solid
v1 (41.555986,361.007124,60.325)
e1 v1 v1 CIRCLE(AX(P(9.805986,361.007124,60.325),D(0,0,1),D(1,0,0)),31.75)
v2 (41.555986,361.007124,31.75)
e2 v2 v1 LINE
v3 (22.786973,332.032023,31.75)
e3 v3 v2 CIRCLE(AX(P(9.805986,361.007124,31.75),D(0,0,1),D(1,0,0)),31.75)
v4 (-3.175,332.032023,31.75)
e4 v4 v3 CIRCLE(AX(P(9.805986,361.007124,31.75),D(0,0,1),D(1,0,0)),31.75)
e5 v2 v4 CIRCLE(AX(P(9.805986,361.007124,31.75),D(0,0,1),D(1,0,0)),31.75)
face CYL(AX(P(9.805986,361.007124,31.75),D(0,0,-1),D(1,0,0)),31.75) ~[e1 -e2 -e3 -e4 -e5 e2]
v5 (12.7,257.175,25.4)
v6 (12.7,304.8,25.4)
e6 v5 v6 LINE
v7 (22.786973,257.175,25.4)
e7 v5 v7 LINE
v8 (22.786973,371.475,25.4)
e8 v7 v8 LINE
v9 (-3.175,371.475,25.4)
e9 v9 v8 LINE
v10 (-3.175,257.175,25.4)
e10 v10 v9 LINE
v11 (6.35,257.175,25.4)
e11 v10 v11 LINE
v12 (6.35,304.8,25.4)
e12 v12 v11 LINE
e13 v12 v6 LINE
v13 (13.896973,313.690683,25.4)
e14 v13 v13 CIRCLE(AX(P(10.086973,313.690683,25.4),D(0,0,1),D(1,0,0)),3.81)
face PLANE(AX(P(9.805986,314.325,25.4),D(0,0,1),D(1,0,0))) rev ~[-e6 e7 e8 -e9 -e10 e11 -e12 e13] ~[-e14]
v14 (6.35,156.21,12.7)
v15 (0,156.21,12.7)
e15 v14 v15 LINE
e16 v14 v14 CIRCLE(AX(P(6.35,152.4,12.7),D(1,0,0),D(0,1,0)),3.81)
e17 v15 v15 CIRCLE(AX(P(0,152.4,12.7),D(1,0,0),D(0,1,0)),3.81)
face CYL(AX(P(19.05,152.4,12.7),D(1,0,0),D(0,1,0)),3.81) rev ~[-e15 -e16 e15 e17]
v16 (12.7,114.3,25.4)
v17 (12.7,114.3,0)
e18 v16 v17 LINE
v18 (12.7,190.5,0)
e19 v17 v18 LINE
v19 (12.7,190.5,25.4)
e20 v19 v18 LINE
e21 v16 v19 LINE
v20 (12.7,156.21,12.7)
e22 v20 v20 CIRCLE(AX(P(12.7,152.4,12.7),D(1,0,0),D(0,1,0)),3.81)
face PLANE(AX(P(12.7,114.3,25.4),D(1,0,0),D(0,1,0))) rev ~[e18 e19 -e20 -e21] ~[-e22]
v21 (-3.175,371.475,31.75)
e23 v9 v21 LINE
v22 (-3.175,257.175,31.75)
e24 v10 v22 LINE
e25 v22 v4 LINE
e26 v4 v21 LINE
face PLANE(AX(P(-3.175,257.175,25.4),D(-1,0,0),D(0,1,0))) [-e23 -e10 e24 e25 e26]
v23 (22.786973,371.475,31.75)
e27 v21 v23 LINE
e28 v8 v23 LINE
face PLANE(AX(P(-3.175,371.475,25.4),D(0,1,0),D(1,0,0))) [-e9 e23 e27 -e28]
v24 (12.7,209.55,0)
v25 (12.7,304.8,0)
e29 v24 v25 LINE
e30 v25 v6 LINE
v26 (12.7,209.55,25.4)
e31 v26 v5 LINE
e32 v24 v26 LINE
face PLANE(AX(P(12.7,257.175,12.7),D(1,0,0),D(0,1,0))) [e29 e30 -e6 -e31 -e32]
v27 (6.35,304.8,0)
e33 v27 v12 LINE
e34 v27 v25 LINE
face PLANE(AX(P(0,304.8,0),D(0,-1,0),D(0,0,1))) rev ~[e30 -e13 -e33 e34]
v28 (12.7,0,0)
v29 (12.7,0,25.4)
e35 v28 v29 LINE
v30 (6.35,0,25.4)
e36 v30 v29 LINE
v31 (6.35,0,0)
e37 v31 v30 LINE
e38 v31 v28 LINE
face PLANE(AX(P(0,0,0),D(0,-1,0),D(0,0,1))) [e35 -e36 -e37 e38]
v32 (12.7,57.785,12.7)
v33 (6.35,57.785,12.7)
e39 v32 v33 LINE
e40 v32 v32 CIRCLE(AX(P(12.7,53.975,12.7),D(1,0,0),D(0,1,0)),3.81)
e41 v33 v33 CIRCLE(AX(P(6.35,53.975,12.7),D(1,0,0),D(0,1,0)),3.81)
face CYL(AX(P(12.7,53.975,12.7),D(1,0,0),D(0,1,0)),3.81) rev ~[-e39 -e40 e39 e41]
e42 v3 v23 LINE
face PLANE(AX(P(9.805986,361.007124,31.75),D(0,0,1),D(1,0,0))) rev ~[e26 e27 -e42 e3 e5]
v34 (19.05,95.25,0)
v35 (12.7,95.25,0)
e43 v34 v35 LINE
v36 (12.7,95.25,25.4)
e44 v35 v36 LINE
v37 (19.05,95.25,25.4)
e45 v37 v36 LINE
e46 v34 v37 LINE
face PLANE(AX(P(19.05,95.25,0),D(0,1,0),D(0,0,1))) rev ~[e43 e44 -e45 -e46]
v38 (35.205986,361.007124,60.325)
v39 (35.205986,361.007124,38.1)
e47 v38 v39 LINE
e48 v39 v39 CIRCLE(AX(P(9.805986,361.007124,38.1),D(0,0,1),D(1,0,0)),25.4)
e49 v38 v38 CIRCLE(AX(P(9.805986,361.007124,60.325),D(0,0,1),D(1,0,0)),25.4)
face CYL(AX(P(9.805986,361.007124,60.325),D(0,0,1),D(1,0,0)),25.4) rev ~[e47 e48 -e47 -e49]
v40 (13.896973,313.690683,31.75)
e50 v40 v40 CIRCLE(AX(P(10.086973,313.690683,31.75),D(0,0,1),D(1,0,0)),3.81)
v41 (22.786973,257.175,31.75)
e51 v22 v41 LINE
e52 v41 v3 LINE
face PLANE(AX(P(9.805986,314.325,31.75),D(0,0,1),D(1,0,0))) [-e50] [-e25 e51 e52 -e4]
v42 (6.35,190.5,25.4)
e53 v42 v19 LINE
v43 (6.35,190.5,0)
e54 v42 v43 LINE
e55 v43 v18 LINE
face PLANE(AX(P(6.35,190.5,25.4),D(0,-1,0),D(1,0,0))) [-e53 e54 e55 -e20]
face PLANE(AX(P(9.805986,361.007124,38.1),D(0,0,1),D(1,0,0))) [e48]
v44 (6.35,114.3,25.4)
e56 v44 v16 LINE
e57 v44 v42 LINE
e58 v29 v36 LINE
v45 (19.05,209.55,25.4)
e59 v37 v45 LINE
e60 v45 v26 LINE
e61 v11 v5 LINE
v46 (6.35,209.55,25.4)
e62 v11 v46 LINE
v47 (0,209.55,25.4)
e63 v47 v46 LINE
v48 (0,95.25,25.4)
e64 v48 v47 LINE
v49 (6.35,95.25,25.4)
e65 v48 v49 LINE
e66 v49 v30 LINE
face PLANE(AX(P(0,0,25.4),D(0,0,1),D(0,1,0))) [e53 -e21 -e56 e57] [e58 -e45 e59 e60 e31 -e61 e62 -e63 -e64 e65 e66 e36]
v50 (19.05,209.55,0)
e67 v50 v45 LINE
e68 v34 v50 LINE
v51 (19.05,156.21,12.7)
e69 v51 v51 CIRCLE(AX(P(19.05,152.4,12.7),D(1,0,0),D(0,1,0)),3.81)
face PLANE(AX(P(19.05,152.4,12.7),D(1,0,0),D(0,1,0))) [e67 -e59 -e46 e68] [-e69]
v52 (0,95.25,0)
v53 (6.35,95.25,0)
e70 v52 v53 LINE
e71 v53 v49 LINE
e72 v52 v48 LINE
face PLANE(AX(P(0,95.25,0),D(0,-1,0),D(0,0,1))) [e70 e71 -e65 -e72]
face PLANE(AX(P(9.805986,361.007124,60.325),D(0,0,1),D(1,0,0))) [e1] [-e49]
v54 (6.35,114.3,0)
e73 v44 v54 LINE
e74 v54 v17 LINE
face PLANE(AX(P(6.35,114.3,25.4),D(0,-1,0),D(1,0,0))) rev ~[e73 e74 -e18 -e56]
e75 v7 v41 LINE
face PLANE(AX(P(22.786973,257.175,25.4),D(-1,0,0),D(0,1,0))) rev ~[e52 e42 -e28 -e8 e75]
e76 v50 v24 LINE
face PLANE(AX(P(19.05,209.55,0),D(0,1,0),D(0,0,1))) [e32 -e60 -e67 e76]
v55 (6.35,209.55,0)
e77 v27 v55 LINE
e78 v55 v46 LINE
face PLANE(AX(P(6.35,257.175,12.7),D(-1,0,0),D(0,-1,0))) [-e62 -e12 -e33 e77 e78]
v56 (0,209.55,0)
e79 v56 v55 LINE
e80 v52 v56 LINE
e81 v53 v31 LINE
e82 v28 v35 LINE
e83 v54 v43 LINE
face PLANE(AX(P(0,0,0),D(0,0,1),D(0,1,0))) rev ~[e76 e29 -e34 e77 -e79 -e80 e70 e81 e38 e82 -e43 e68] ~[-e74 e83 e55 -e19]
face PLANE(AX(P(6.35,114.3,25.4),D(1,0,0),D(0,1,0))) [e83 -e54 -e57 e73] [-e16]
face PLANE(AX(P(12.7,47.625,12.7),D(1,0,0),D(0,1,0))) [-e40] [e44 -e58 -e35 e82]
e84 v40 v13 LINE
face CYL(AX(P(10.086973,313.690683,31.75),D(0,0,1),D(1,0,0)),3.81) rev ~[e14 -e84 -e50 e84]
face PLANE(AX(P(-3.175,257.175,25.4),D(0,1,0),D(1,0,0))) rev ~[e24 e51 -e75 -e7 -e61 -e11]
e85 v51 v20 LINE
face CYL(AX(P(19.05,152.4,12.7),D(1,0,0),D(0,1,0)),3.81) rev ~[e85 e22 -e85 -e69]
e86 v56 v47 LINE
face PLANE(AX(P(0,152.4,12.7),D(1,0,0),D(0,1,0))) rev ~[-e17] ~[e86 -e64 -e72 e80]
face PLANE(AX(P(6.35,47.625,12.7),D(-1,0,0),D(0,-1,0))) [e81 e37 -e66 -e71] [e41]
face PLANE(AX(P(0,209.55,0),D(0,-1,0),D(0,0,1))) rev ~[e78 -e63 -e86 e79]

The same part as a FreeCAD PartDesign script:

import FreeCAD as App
import Part
import Sketcher
from FreeCAD import Vector
Q = App.Units.Quantity


def add_polygon(sketch, points):
    """Adds a closed chain of lines whose ends are joined by coincident constraints."""
    first, n = sketch.GeometryCount, len(points)
    for a, b in zip(points, points[1:] + points[:1]):
        sketch.addGeometry(Part.LineSegment(App.Vector(*a, 0), App.Vector(*b, 0)), False)
    for i in range(n):
        sketch.addConstraint(Sketcher.Constraint("Coincident", first + i, 2, first + (i + 1) % n, 1))

doc = App.newDocument("Part")
body = doc.addObject("PartDesign::Body", "Body")

sketch1 = body.newObject("Sketcher::SketchObject", "Sketch")
sketch1.AttachmentSupport = (doc.getObject("YZ_Plane"), [""])
sketch1.MapMode = "FlatFace"
add_polygon(sketch1, [(0, 25.4), (0, 0), (304.8, 0), (304.8, 25.4)])
sketch1.addConstraint(Sketcher.Constraint("Vertical", 0))
sketch1.addConstraint(Sketcher.Constraint("Horizontal", 1))
sketch1.addConstraint(Sketcher.Constraint("Vertical", 2))
sketch1.addConstraint(Sketcher.Constraint("Horizontal", 3))
sketch1.addConstraint(Sketcher.Constraint("Coincident", 0, 2, -1, 1))
sketch1.addConstraint(Sketcher.Constraint("DistanceX", 1, 1, 1, 2, Q("12 in")))
sketch1.addConstraint(Sketcher.Constraint("DistanceY", 0, 2, 0, 1, Q("1 in")))
pad1 = body.newObject("PartDesign::Pad", "Pad")
pad1.Profile = sketch1
pad1.Length = Q("0.75 in")

sketch2 = body.newObject("Sketcher::SketchObject", "Sketch001")
sketch2.AttachmentSupport = (doc.getObject("YZ_Plane"), [""])
sketch2.MapMode = "FlatFace"
sketch2.AttachmentOffset = App.Placement(Vector(0, 0, 0.75 * 25.4), App.Rotation())
add_polygon(sketch2, [(0, 25.4), (0, 0), (95.25, 0), (95.25, 25.4)])
sketch2.addConstraint(Sketcher.Constraint("Vertical", 0))
sketch2.addConstraint(Sketcher.Constraint("Horizontal", 1))
sketch2.addConstraint(Sketcher.Constraint("Vertical", 2))
sketch2.addConstraint(Sketcher.Constraint("Horizontal", 3))
sketch2.addConstraint(Sketcher.Constraint("Coincident", 0, 2, -1, 1))
sketch2.addConstraint(Sketcher.Constraint("DistanceY", 0, 2, 0, 1, Q("1 in")))
sketch2.addConstraint(Sketcher.Constraint("DistanceX", 1, 1, 1, 2, Q("3.75 in")))
pocket1 = body.newObject("PartDesign::Pocket", "Pocket")
pocket1.Profile = sketch2
pocket1.Length = Q("0.25 in")

sketch3 = body.newObject("Sketcher::SketchObject", "Sketch002")
sketch3.AttachmentSupport = (doc.getObject("YZ_Plane"), [""])
sketch3.MapMode = "FlatFace"
add_polygon(sketch3, [(95.25, 25.4), (95.25, 0), (0, 0), (0, 25.4)])
sketch3.addConstraint(Sketcher.Constraint("Vertical", 0))
sketch3.addConstraint(Sketcher.Constraint("Horizontal", 1))
sketch3.addConstraint(Sketcher.Constraint("Vertical", 2))
sketch3.addConstraint(Sketcher.Constraint("Horizontal", 3))
sketch3.addConstraint(Sketcher.Constraint("Coincident", 1, 2, -1, 1))
sketch3.addConstraint(Sketcher.Constraint("DistanceY", 0, 2, 0, 1, Q("1 in")))
sketch3.addConstraint(Sketcher.Constraint("DistanceX", 1, 2, 1, 1, Q("3.75 in")))
pocket2 = body.newObject("PartDesign::Pocket", "Pocket001")
pocket2.Profile = sketch3
pocket2.Length = Q("0.25 in")
pocket2.Reversed = True

sketch4 = body.newObject("Sketcher::SketchObject", "Sketch003")
sketch4.AttachmentSupport = (doc.getObject("YZ_Plane"), [""])
sketch4.MapMode = "FlatFace"
sketch4.AttachmentOffset = App.Placement(Vector(0, 0, 0.75 * 25.4), App.Rotation())
add_polygon(sketch4, [(209.55, 25.4), (209.55, 0), (304.8, 0), (304.8, 25.4)])
sketch4.addConstraint(Sketcher.Constraint("Vertical", 0))
sketch4.addConstraint(Sketcher.Constraint("Horizontal", 1))
sketch4.addConstraint(Sketcher.Constraint("Vertical", 2))
sketch4.addConstraint(Sketcher.Constraint("Horizontal", 3))
sketch4.addConstraint(Sketcher.Constraint("PointOnObject", 0, 2, -1))
sketch4.addConstraint(Sketcher.Constraint("DistanceY", 0, 2, 0, 1, Q("1 in")))
sketch4.addConstraint(Sketcher.Constraint("DistanceX", -1, 1, 1, 2, Q("12 in")))
sketch4.addConstraint(Sketcher.Constraint("DistanceX", 1, 1, 1, 2, Q("3.75 in")))
pocket3 = body.newObject("PartDesign::Pocket", "Pocket002")
pocket3.Profile = sketch4
pocket3.Length = Q("0.25 in")

sketch5 = body.newObject("Sketcher::SketchObject", "Sketch004")
sketch5.AttachmentSupport = (doc.getObject("YZ_Plane"), [""])
sketch5.MapMode = "FlatFace"
add_polygon(sketch5, [(304.8, 25.4), (304.8, 0), (209.55, 0), (209.55, 25.4)])
sketch5.addConstraint(Sketcher.Constraint("Vertical", 0))
sketch5.addConstraint(Sketcher.Constraint("Horizontal", 1))
sketch5.addConstraint(Sketcher.Constraint("Vertical", 2))
sketch5.addConstraint(Sketcher.Constraint("Horizontal", 3))
sketch5.addConstraint(Sketcher.Constraint("PointOnObject", 0, 2, -1))
sketch5.addConstraint(Sketcher.Constraint("DistanceY", 0, 2, 0, 1, Q("1 in")))
sketch5.addConstraint(Sketcher.Constraint("DistanceX", -1, 1, 0, 2, Q("12 in")))
sketch5.addConstraint(Sketcher.Constraint("DistanceX", 1, 2, 1, 1, Q("3.75 in")))
pocket4 = body.newObject("PartDesign::Pocket", "Pocket003")
pocket4.Profile = sketch5
pocket4.Length = Q("0.25 in")
pocket4.Reversed = True

sketch6 = body.newObject("Sketcher::SketchObject", "Sketch005")
sketch6.AttachmentSupport = (doc.getObject("XY_Plane"), [""])
sketch6.MapMode = "FlatFace"
sketch6.AttachmentOffset = App.Placement(Vector(0, 0, 1 * 25.4), App.Rotation())
add_polygon(sketch6, [(6.35, 190.5), (6.35, 114.3), (12.7, 114.3), (12.7, 190.5)])
sketch6.addConstraint(Sketcher.Constraint("Vertical", 0))
sketch6.addConstraint(Sketcher.Constraint("Horizontal", 1))
sketch6.addConstraint(Sketcher.Constraint("Vertical", 2))
sketch6.addConstraint(Sketcher.Constraint("Horizontal", 3))
sketch6.addConstraint(Sketcher.Constraint("DistanceY", 0, 2, 0, 1, Q("3 in")))
sketch6.addConstraint(Sketcher.Constraint("DistanceX", 1, 1, 1, 2, Q("0.25 in")))
sketch6.addConstraint(Sketcher.Constraint("DistanceY", -1, 1, 0, 2, Q("4.5 in")))
sketch6.addConstraint(Sketcher.Constraint("DistanceX", -1, 1, 1, 2, Q("0.5 in")))
pocket5 = body.newObject("PartDesign::Pocket", "Pocket004")
pocket5.Profile = sketch6
pocket5.Length = Q("1 in")

sketch7 = body.newObject("Sketcher::SketchObject", "Sketch006")
sketch7.AttachmentSupport = (doc.getObject("YZ_Plane"), [""])
sketch7.MapMode = "FlatFace"
sketch7.AttachmentOffset = App.Placement(Vector(0, 0, 0.75 * 25.4), App.Rotation())
sketch7.addGeometry(Part.Circle(Vector(152.4, 12.7, 0), Vector(0, 0, 1), 3.81), False)
sketch7.addConstraint(Sketcher.Constraint("Diameter", 0, Q("0.3 in")))
sketch7.addConstraint(Sketcher.Constraint("DistanceX", -1, 1, 0, 3, Q("6 in")))
sketch7.addConstraint(Sketcher.Constraint("DistanceY", -1, 1, 0, 3, Q("0.5 in")))
pocket6 = body.newObject("PartDesign::Pocket", "Pocket005")
pocket6.Profile = sketch7
pocket6.Length = Q("1 in")

sketch8 = body.newObject("Sketcher::SketchObject", "Sketch007")
sketch8.AttachmentSupport = (doc.getObject("XY_Plane"), [""])
sketch8.MapMode = "FlatFace"
sketch8.AttachmentOffset = App.Placement(Vector(0, 0, 1 * 25.4), App.Rotation())
add_polygon(sketch8, [(-3.175, 371.475), (-3.175, 257.175), (22.786973, 257.175), (22.786973, 371.475)])
sketch8.addConstraint(Sketcher.Constraint("Vertical", 0))
sketch8.addConstraint(Sketcher.Constraint("Horizontal", 1))
sketch8.addConstraint(Sketcher.Constraint("Vertical", 2))
sketch8.addConstraint(Sketcher.Constraint("Horizontal", 3))
sketch8.addConstraint(Sketcher.Constraint("DistanceY", 0, 2, 0, 1, Q("4.5 in")))
sketch8.addConstraint(Sketcher.Constraint("DistanceX", 0, 2, -1, 1, Q("0.125 in")))
sketch8.addConstraint(Sketcher.Constraint("DistanceY", -1, 1, 0, 2, Q("10.125 in")))
sketch8.addConstraint(Sketcher.Constraint("DistanceX", 1, 1, 1, 2, Q("25.961973 mm")))
pad2 = body.newObject("PartDesign::Pad", "Pad001")
pad2.Profile = sketch8
pad2.Length = Q("0.25 in")

sketch9 = body.newObject("Sketcher::SketchObject", "Sketch008")
sketch9.AttachmentSupport = (doc.getObject("XY_Plane"), [""])
sketch9.MapMode = "FlatFace"
sketch9.AttachmentOffset = App.Placement(Vector(0, 0, 1.25 * 25.4), App.Rotation())
sketch9.addGeometry(Part.Circle(Vector(10.086973, 313.690683, 0), Vector(0, 0, 1), 3.81), False)
sketch9.addConstraint(Sketcher.Constraint("Diameter", 0, Q("0.3 in")))
sketch9.addConstraint(Sketcher.Constraint("DistanceX", -1, 1, 0, 3, Q("10.086973 mm")))
sketch9.addConstraint(Sketcher.Constraint("DistanceY", -1, 1, 0, 3, Q("313.690683 mm")))
pocket7 = body.newObject("PartDesign::Pocket", "Pocket006")
pocket7.Profile = sketch9
pocket7.Length = Q("1 in")

sketch10 = body.newObject("Sketcher::SketchObject", "Sketch009")
sketch10.AttachmentSupport = (doc.getObject("YZ_Plane"), [""])
sketch10.MapMode = "FlatFace"
sketch10.AttachmentOffset = App.Placement(Vector(0, 0, 0.5 * 25.4), App.Rotation())
sketch10.addGeometry(Part.Circle(Vector(53.975, 12.7, 0), Vector(0, 0, 1), 3.81), False)
sketch10.addConstraint(Sketcher.Constraint("Diameter", 0, Q("0.3 in")))
sketch10.addConstraint(Sketcher.Constraint("DistanceY", -1, 1, 0, 3, Q("0.5 in")))
sketch10.addConstraint(Sketcher.Constraint("DistanceX", -1, 1, 0, 3, Q("2.125 in")))
pocket8 = body.newObject("PartDesign::Pocket", "Pocket007")
pocket8.Profile = sketch10
pocket8.Length = Q("1 in")

sketch11 = body.newObject("Sketcher::SketchObject", "Sketch010")
sketch11.AttachmentSupport = (doc.getObject("XY_Plane"), [""])
sketch11.MapMode = "FlatFace"
sketch11.AttachmentOffset = App.Placement(Vector(0, 0, 1.25 * 25.4), App.Rotation())
sketch11.addGeometry(Part.Circle(Vector(9.805986, 361.007124, 0), Vector(0, 0, 1), 31.75), False)
sketch11.addConstraint(Sketcher.Constraint("Diameter", 0, Q("2.5 in")))
sketch11.addConstraint(Sketcher.Constraint("DistanceX", -1, 1, 0, 3, Q("9.805986 mm")))
sketch11.addConstraint(Sketcher.Constraint("DistanceY", -1, 1, 0, 3, Q("361.007124 mm")))
pad3 = body.newObject("PartDesign::Pad", "Pad002")
pad3.Profile = sketch11
pad3.Length = Q("1.125 in")

sketch12 = body.newObject("Sketcher::SketchObject", "Sketch011")
sketch12.AttachmentSupport = (doc.getObject("XY_Plane"), [""])
sketch12.MapMode = "FlatFace"
sketch12.AttachmentOffset = App.Placement(Vector(0, 0, 2.375 * 25.4), App.Rotation())
sketch12.addGeometry(Part.Circle(Vector(9.805986, 361.007124, 0), Vector(0, 0, 1), 25.4), False)
sketch12.addConstraint(Sketcher.Constraint("Diameter", 0, Q("2 in")))
sketch12.addConstraint(Sketcher.Constraint("DistanceX", -1, 1, 0, 3, Q("9.805986 mm")))
sketch12.addConstraint(Sketcher.Constraint("DistanceY", -1, 1, 0, 3, Q("361.007124 mm")))
pocket9 = body.newObject("PartDesign::Pocket", "Pocket008")
pocket9.Profile = sketch12
pocket9.Length = Q("0.875 in")

doc.recompute()
